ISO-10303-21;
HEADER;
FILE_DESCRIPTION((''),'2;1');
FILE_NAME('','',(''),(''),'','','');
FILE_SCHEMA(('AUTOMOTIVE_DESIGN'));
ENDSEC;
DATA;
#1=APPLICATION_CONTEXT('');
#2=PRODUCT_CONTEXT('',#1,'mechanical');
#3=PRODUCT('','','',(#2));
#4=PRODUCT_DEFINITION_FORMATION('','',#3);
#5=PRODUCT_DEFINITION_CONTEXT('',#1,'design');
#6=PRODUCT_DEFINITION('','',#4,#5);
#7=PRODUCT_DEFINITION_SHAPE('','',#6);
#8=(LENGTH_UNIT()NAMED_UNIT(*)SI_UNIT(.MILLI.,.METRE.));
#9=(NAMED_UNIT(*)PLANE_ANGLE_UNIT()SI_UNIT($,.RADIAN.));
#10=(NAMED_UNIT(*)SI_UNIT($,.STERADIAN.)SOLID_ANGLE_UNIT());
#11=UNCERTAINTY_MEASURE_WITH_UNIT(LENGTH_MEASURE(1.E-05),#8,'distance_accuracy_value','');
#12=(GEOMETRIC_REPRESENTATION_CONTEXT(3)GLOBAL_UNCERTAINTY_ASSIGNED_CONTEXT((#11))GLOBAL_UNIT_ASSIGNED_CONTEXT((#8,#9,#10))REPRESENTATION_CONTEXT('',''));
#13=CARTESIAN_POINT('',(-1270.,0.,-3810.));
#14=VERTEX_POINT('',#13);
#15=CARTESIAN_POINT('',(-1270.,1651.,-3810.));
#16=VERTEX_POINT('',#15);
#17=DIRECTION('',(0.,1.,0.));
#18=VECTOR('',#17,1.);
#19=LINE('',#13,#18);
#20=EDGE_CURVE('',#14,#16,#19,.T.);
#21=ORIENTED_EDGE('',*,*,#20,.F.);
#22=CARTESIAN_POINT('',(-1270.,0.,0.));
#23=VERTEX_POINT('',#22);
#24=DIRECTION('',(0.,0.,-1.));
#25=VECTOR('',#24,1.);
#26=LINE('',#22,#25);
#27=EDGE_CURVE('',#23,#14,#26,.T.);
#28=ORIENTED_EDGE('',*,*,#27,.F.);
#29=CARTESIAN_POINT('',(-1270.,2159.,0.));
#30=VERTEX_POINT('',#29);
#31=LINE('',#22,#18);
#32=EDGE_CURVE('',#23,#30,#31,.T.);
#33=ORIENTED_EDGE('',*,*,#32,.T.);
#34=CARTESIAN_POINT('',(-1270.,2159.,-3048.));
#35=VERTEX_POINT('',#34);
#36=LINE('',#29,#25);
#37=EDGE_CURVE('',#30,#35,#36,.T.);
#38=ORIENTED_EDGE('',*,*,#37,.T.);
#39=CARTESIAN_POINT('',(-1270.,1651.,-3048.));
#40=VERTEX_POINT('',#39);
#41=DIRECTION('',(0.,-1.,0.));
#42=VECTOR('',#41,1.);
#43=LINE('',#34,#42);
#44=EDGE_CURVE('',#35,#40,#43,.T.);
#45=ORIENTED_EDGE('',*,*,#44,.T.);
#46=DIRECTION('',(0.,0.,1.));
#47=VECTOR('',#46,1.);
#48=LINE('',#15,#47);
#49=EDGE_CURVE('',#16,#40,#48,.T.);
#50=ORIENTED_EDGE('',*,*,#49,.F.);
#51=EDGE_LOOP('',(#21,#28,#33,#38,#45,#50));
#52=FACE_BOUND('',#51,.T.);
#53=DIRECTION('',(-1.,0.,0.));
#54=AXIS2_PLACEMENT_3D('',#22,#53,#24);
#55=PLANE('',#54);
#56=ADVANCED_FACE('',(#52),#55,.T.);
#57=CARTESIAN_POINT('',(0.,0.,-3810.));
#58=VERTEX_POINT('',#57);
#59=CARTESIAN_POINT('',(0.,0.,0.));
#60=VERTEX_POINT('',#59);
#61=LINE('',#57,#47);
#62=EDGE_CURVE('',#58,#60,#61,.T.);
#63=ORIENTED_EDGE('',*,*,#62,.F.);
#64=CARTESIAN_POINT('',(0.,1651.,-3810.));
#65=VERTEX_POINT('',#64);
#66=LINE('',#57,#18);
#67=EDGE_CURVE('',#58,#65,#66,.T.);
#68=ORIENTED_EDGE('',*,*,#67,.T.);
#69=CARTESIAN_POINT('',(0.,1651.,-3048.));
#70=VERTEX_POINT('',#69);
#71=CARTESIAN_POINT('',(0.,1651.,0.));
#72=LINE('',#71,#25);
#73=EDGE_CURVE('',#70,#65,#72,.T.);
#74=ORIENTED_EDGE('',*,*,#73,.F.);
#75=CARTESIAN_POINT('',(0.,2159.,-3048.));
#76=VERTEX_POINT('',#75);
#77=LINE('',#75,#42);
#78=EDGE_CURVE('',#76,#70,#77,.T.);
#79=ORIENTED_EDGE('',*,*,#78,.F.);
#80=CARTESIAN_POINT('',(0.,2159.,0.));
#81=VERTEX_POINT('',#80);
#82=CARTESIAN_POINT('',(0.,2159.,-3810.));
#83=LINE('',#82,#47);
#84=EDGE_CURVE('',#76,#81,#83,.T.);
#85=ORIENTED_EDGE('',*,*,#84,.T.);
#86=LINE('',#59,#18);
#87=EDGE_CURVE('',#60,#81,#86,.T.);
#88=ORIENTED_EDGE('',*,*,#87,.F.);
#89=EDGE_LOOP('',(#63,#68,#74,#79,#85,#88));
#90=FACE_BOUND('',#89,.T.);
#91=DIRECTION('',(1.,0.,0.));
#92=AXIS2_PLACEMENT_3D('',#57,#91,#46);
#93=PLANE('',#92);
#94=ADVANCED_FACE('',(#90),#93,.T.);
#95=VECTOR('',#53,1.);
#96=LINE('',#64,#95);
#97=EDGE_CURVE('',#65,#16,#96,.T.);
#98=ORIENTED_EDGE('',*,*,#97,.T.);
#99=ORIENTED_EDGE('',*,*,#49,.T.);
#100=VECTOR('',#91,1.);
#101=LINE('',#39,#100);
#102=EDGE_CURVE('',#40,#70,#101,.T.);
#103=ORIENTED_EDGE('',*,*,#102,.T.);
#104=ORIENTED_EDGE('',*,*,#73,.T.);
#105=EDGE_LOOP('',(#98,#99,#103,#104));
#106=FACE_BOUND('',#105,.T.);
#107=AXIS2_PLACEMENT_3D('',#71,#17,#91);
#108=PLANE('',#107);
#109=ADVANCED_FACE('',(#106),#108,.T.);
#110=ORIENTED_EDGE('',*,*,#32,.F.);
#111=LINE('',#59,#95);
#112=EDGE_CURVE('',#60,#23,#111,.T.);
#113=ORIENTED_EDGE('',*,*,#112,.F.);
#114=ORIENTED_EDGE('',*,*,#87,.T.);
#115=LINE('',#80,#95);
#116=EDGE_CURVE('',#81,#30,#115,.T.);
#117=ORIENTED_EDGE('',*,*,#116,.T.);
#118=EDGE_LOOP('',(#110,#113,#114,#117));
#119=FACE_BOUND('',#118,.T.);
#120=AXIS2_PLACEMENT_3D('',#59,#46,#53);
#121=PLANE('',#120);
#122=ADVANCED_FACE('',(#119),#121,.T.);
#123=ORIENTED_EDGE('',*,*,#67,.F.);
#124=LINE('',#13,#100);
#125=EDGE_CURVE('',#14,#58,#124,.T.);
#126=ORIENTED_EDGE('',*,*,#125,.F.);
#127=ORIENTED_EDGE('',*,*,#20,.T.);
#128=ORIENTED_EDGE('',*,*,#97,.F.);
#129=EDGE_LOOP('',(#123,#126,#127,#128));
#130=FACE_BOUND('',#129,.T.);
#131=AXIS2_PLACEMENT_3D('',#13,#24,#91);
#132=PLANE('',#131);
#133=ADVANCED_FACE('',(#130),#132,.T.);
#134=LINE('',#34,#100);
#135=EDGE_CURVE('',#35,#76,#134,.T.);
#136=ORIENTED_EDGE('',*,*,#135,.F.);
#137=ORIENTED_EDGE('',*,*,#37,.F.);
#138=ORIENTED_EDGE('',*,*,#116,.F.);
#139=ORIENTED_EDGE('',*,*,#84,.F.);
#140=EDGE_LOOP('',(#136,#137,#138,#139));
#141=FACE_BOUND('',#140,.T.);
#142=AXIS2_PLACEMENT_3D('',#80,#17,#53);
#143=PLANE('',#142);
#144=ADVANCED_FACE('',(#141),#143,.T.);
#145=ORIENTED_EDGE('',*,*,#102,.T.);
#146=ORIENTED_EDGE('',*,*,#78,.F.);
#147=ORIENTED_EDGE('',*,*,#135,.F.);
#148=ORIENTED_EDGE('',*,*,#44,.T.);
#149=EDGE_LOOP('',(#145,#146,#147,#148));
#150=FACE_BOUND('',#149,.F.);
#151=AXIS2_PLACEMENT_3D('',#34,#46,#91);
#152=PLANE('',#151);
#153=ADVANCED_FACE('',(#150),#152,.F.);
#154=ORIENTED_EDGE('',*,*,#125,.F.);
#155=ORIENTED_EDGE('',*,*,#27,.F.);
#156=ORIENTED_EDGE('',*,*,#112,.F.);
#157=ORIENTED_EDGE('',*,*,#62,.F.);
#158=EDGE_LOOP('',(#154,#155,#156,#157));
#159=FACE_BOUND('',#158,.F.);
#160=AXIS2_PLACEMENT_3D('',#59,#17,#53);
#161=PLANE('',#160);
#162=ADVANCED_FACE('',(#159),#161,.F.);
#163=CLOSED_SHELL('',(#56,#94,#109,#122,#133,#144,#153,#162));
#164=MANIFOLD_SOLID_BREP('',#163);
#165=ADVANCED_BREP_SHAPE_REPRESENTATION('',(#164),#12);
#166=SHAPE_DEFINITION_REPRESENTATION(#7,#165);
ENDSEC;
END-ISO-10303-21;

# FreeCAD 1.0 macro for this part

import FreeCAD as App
import Part
import Sketcher

V = App.Vector
Q = App.Units.Quantity


def add_polygon(sketch, points):
    """Adds a closed chain of lines whose ends are joined by coincident constraints."""
    first, n = sketch.GeometryCount, len(points)
    for a, b in zip(points, points[1:] + points[:1]):
        sketch.addGeometry(Part.LineSegment(App.Vector(*a, 0), App.Vector(*b, 0)), False)
    for i in range(n):
        sketch.addConstraint(Sketcher.Constraint("Coincident", first + i, 2, first + (i + 1) % n, 1))

doc = App.newDocument("Part")
params = doc.addObject("Spreadsheet::Sheet", "Params")
for row, (alias, value) in enumerate([
    ("sketch1_width", "50 in"),
    ("sketch1_height", "150 in"),
    ("pad1_length", "85 in"),
    ("sketch2_height", "30 in"),
    ("sketch2_width", "50 in"),
    ("pocket1_length", "20 in"),
], start=1):
    params.set(f"A{row}", alias)
    params.set(f"B{row}", "=" + value)
    params.setAlias(f"B{row}", alias)

body = doc.addObject("PartDesign::Body", "Body")

# Sketch on XZ plane
sketch1 = doc.addObject("Sketcher::SketchObject", "Sketch")
body.addObject(sketch1)
sketch1.AttachmentSupport = (doc.XZ_Plane, [""])
sketch1.MapMode = "FlatFace"
add_polygon(sketch1, [(-1270, 0), (0, 0), (0, -3810), (-1270, -3810)])  # lines 0-3
sketch1.addConstraint([
    Sketcher.Constraint("Horizontal", 0),
    Sketcher.Constraint("Vertical", 1),
    Sketcher.Constraint("Horizontal", 2),
    Sketcher.Constraint("Vertical", 3),
    Sketcher.Constraint("Coincident", 0, 2, -1, 1),
    Sketcher.Constraint("DistanceX", 0, 1, 0, 2, Q("50 in")),
    Sketcher.Constraint("DistanceY", 1, 2, 1, 1, Q("150 in")),
])
sketch1.setExpression("Constraints[9]", "Params.sketch1_width")
sketch1.setExpression("Constraints[10]", "Params.sketch1_height")
pad1 = doc.addObject("PartDesign::Pad", "Pad")
body.addObject(pad1)
pad1.Profile = sketch1
pad1.setExpression("Length", "Params.pad1_length")
pad1.Reversed = True

# Sketch on XZ plane
sketch2 = doc.addObject("Sketcher::SketchObject", "Sketch001")
body.addObject(sketch2)
sketch2.AttachmentSupport = (doc.XZ_Plane, [""])
sketch2.MapMode = "FlatFace"
sketch2.AttachmentOffset = App.Placement(V(0, 0, -85 * 25.4), App.Rotation())
add_polygon(sketch2, [(-1270, -3048), (0, -3048), (0, -3810), (-1270, -3810)])  # lines 0-3
sketch2.addConstraint([
    Sketcher.Constraint("Horizontal", 0),
    Sketcher.Constraint("Vertical", 1),
    Sketcher.Constraint("Horizontal", 2),
    Sketcher.Constraint("Vertical", 3),
    Sketcher.Constraint("PointOnObject", 0, 2, -2),
    Sketcher.Constraint("DistanceY", 1, 2, 1, 1, Q("30 in")),
    Sketcher.Constraint("DistanceX", 0, 1, 0, 2, Q("50 in")),
    Sketcher.Constraint("DistanceY", 0, 2, -1, 1, Q("120 in")),
])
sketch2.setExpression("Constraints[9]", "Params.sketch2_height")
sketch2.setExpression("Constraints[10]", "Params.sketch2_width")
pocket1 = doc.addObject("PartDesign::Pocket", "Pocket")
body.addObject(pocket1)
pocket1.Profile = sketch2
pocket1.setExpression("Length", "Params.pocket1_length")
pocket1.Reversed = True

doc.recompute()
